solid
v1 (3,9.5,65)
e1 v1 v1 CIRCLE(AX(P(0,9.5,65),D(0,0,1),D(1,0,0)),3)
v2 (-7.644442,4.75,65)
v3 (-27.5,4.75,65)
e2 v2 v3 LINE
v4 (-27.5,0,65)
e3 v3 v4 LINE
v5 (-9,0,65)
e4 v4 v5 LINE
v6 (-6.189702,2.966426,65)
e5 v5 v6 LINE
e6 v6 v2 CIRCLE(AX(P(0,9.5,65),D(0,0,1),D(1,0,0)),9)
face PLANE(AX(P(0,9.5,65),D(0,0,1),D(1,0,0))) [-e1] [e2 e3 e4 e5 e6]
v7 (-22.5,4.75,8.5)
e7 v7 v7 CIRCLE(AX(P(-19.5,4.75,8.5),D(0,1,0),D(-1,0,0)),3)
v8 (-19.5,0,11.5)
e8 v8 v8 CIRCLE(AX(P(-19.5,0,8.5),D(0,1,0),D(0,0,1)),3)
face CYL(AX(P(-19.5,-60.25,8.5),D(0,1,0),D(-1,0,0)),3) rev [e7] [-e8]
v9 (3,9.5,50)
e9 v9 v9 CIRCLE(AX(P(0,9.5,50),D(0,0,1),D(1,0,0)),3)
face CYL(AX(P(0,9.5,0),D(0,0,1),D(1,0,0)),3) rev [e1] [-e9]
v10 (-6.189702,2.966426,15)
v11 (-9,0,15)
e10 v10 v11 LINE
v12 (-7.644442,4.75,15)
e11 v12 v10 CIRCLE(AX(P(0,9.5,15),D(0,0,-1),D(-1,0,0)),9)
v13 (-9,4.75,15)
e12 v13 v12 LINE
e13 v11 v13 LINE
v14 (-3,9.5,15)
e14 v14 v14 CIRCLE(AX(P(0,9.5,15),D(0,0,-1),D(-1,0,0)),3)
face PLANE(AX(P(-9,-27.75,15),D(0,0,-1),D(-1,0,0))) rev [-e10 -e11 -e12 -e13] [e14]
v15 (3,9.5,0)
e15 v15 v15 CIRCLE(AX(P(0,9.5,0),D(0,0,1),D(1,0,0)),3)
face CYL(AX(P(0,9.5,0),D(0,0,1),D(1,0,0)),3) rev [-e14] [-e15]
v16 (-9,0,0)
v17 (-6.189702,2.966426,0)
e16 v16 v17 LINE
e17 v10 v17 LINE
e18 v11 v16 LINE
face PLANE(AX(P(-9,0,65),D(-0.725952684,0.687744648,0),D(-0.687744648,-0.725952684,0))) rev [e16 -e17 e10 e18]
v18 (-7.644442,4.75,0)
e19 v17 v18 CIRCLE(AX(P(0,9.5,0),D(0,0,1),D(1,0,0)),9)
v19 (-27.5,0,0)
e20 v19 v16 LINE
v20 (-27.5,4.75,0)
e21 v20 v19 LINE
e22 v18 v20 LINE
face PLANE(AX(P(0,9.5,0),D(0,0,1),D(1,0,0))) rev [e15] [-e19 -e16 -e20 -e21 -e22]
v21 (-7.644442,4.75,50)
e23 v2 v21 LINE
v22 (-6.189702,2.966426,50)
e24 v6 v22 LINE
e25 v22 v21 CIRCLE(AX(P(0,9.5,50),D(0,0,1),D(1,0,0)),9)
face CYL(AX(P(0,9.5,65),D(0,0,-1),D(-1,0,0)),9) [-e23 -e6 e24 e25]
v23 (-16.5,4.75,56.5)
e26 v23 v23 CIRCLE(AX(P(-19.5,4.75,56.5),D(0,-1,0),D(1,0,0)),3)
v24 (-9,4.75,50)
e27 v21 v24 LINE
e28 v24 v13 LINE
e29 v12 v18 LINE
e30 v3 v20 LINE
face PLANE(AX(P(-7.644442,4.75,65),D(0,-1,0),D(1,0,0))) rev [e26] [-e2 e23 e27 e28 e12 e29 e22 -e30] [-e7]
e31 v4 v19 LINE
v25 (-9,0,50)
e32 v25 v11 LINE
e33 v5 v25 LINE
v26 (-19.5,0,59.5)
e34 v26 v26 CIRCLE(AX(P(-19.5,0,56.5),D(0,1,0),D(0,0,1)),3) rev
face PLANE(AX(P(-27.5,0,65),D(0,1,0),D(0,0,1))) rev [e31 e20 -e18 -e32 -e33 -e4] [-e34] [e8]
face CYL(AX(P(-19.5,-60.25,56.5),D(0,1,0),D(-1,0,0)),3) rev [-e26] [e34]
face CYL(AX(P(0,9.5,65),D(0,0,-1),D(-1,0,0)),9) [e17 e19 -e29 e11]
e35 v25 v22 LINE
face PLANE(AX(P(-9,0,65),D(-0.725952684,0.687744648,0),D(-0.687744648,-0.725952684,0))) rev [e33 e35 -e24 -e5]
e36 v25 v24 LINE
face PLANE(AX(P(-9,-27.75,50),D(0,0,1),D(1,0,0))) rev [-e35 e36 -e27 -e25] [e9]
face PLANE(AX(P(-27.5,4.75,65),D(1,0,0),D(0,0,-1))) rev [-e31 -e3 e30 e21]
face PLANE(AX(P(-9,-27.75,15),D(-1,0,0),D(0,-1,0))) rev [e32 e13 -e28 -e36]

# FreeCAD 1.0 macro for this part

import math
import FreeCAD as App
import Part
import Sketcher

V = App.Vector


def add_polygon(sketch, points):
    """Adds a closed chain of lines whose ends are joined by coincident constraints."""
    first, n = sketch.GeometryCount, len(points)
    for a, b in zip(points, points[1:] + points[:1]):
        sketch.addGeometry(Part.LineSegment(App.Vector(*a, 0), App.Vector(*b, 0)), False)
    for i in range(n):
        sketch.addConstraint(Sketcher.Constraint("Coincident", first + i, 2, first + (i + 1) % n, 1))

doc = App.newDocument("Part")
body = doc.addObject("PartDesign::Body", "Body")

# Sketch on XY plane
sketch1 = body.newObject("Sketcher::SketchObject", "Sketch")
sketch1.AttachmentSupport = (doc.getObject("XY_Plane"), [""])
sketch1.MapMode = "FlatFace"
sketch1.addGeometry(Part.LineSegment(V(-27.5, 4.8, 0), V(-27.5, 0, 0)), False)
sketch1.addGeometry(Part.LineSegment(V(-27.5, 0, 0), V(-9, 0, 0)), False)
sketch1.addGeometry(Part.LineSegment(V(-9, 0, 0), V(-6.2, 3, 0)), False)
sketch1.addGeometry(Part.ArcOfCircle(Part.Circle(V(0, 9.5, 0), V(0, 0, 1), 9), math.radians(-133), math.radians(212)), False)
sketch1.addGeometry(Part.LineSegment(V(-7.6, 4.8, 0), V(-27.5, 4.8, 0)), False)
sketch1.addConstraint(Sketcher.Constraint("Coincident", 0, 2, 1, 1))
sketch1.addConstraint(Sketcher.Constraint("Coincident", 1, 2, 2, 1))
sketch1.addConstraint(Sketcher.Constraint("Coincident", 2, 2, 3, 1))
sketch1.addConstraint(Sketcher.Constraint("Coincident", 3, 2, 4, 1))
sketch1.addConstraint(Sketcher.Constraint("Coincident", 4, 2, 0, 1))
sketch1.addConstraint(Sketcher.Constraint("Vertical", 0))
sketch1.addConstraint(Sketcher.Constraint("Horizontal", 1))
sketch1.addConstraint(Sketcher.Constraint("Horizontal", 4))
sketch1.addConstraint(Sketcher.Constraint("PointOnObject", 3, 3, -2))
sketch1.addConstraint(Sketcher.Constraint("PointOnObject", 0, 2, -1))
sketch1.addConstraint(Sketcher.Constraint("Radius", 3, 9.0))
sketch1.addConstraint(Sketcher.Constraint("DistanceX", 1, 1, 1, 2, 18.5))
sketch1.addConstraint(Sketcher.Constraint("DistanceX", 1, 2, -1, 1, 9.0))
sketch1.addConstraint(Sketcher.Constraint("DistanceY", 0, 2, 0, 1, 4.75))
sketch1.addConstraint(Sketcher.Constraint("DistanceY", -1, 1, 3, 3, 9.5))
sketch1.addConstraint(Sketcher.Constraint("DistanceX", 2, 2, -1, 1, 6.189702))
pad1 = body.newObject("PartDesign::Pad", "Pad")
pad1.Profile = sketch1
pad1.Length = 65

# Sketch on XZ plane
sketch2 = body.newObject("Sketcher::SketchObject", "Sketch001")
sketch2.AttachmentSupport = (doc.getObject("XZ_Plane"), [""])
sketch2.MapMode = "FlatFace"
sketch2.AttachmentOffset = App.Placement(V(0, 0, -4.75), App.Rotation())
sketch2.addGeometry(Part.Circle(V(-19.5, 8.5, 0), V(0, 0, 1), 3), False)
sketch2.addGeometry(Part.Circle(V(-19.5, 56.5, 0), V(0, 0, 1), 3), False)
sketch2.addConstraint(Sketcher.Constraint("Equal", 0, 1))
sketch2.addConstraint(Sketcher.Constraint("Vertical", 0, 3, 1, 3))
sketch2.addConstraint(Sketcher.Constraint("Diameter", 0, 6.0))
sketch2.addConstraint(Sketcher.Constraint("DistanceY", 0, 3, 1, 3, 48.0))
sketch2.addConstraint(Sketcher.Constraint("DistanceX", 0, 3, -1, 1, 19.5))
sketch2.addConstraint(Sketcher.Constraint("DistanceY", -1, 1, 0, 3, 8.5))
pocket1 = body.newObject("PartDesign::Pocket", "Pocket")
pocket1.Profile = sketch2
pocket1.Length = 65
pocket1.Reversed = True

# Sketch on XZ plane
sketch3 = body.newObject("Sketcher::SketchObject", "Sketch002")
sketch3.AttachmentSupport = (doc.getObject("XZ_Plane"), [""])
sketch3.MapMode = "FlatFace"
sketch3.AttachmentOffset = App.Placement(V(0, 0, -4.75), App.Rotation())
add_polygon(sketch3, [(-9, 15), (-9, 50), (10, 50), (10, 15)])  # lines 0-3
sketch3.addConstraint(Sketcher.Constraint("Vertical", 0))
sketch3.addConstraint(Sketcher.Constraint("Horizontal", 1))
sketch3.addConstraint(Sketcher.Constraint("Vertical", 2))
sketch3.addConstraint(Sketcher.Constraint("Horizontal", 3))
sketch3.addConstraint(Sketcher.Constraint("DistanceY", 0, 1, 0, 2, 35.0))
sketch3.addConstraint(Sketcher.Constraint("DistanceX", 0, 2, -1, 1, 9.0))
sketch3.addConstraint(Sketcher.Constraint("DistanceY", -1, 1, 0, 2, 50.0))
sketch3.addConstraint(Sketcher.Constraint("DistanceX", 1, 1, 1, 2, 19.333072))
pocket2 = body.newObject("PartDesign::Pocket", "Pocket001")
pocket2.Profile = sketch3
pocket2.Length = 65
pocket2.Midplane = True

# Sketch on XY plane
sketch4 = body.newObject("Sketcher::SketchObject", "Sketch003")
sketch4.AttachmentSupport = (doc.getObject("XY_Plane"), [""])
sketch4.MapMode = "FlatFace"
sketch4.AttachmentOffset = App.Placement(V(0, 0, 65), App.Rotation())
sketch4.addGeometry(Part.Circle(V(0, 9.5, 0), V(0, 0, 1), 3), False)
sketch4.addConstraint(Sketcher.Constraint("PointOnObject", 0, 3, -2))
sketch4.addConstraint(Sketcher.Constraint("Diameter", 0, 6.0))
sketch4.addConstraint(Sketcher.Constraint("DistanceY", -1, 1, 0, 3, 9.5))
pocket3 = body.newObject("PartDesign::Pocket", "Pocket002")
pocket3.Profile = sketch4
pocket3.Length = 65

doc.recompute()
